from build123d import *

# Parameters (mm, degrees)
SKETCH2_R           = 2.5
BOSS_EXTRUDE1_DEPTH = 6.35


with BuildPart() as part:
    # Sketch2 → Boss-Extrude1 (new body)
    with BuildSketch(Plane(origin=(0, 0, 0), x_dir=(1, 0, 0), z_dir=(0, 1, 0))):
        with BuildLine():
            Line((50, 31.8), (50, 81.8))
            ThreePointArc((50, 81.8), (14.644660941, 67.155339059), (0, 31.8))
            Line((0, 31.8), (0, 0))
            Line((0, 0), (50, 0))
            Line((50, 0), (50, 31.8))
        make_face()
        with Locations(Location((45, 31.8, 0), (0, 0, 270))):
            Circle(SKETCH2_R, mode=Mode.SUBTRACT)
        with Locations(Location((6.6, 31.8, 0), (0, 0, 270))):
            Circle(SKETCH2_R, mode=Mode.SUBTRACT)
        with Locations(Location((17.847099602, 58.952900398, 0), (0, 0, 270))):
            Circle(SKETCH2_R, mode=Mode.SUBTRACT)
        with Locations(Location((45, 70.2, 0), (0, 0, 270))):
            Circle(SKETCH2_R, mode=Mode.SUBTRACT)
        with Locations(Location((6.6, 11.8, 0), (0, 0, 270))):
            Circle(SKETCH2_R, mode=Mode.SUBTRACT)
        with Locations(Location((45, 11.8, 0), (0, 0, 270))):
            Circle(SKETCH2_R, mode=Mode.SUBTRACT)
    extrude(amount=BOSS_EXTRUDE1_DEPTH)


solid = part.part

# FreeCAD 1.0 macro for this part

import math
import FreeCAD as App
import Part
import Sketcher

doc = App.newDocument("Part")
params = doc.addObject("Spreadsheet::Sheet", "Params")
for row, (alias, value) in enumerate([
    ("sketch1_diameter", "5 mm"),
    ("sketch1_radius", "50 mm"),
    ("sketch1_height", "31.8 mm"),
    ("pad1_length", "6.35 mm"),
], start=1):
    params.set(f"A{row}", alias)
    params.set(f"B{row}", "=" + value)
    params.setAlias(f"B{row}", alias)

body = doc.addObject("PartDesign::Body", "Body")

sketch1 = doc.addObject("Sketcher::SketchObject", "Sketch")
body.addObject(sketch1)
sketch1.AttachmentSupport = (doc.XZ_Plane, [""])
sketch1.MapMode = "FlatFace"
sketch1.addGeometry([
    Part.ArcOfCircle(Part.Circle(App.Vector(50, -31.8, 0), App.Vector(0, 0, 1), 50), math.radians(-180), math.radians(-90)),
    Part.LineSegment(App.Vector(0, -31.8, 0), App.Vector(0, 0, 0)),
    Part.LineSegment(App.Vector(0, 0, 0), App.Vector(50, 0, 0)),
    Part.LineSegment(App.Vector(50, 0, 0), App.Vector(50, -81.8, 0)),
    Part.Circle(App.Vector(6.6, -11.8, 0), App.Vector(0, 0, 1), 2.5),
    Part.Circle(App.Vector(6.6, -31.8, 0), App.Vector(0, 0, 1), 2.5),
    Part.Circle(App.Vector(45, -11.8, 0), App.Vector(0, 0, 1), 2.5),
    Part.Circle(App.Vector(45, -31.8, 0), App.Vector(0, 0, 1), 2.5),
    Part.Circle(App.Vector(17.8471, -58.9529, 0), App.Vector(0, 0, 1), 2.5),
    Part.Circle(App.Vector(45, -70.2, 0), App.Vector(0, 0, 1), 2.5),
], False)
sketch1.addConstraint([
    Sketcher.Constraint("Tangent", 0, 1, 1, 1),
    Sketcher.Constraint("Coincident", 1, 2, 2, 1),
    Sketcher.Constraint("Coincident", 2, 2, 3, 1),
    Sketcher.Constraint("Coincident", 3, 2, 0, 2),
    Sketcher.Constraint("Vertical", 1),
    Sketcher.Constraint("Horizontal", 2),
    Sketcher.Constraint("Vertical", 3),
    Sketcher.Constraint("Coincident", 1, 2, -1, 1),
    Sketcher.Constraint("Equal", 4, 5),
    Sketcher.Constraint("Equal", 5, 6),
    Sketcher.Constraint("Equal", 6, 7),
    Sketcher.Constraint("Equal", 7, 8),
    Sketcher.Constraint("Equal", 8, 9),
    Sketcher.Constraint("Horizontal", 0, 3, 5, 3),
    Sketcher.Constraint("Horizontal", 4, 3, 6, 3),
    Sketcher.Constraint("Horizontal", 5, 3, 7, 3),
    Sketcher.Constraint("Vertical", 4, 3, 5, 3),
    Sketcher.Constraint("Vertical", 6, 3, 7, 3),
    Sketcher.Constraint("Vertical", 7, 3, 9, 3),
    Sketcher.Constraint("Vertical", 0, 3, 2, 2),
    Sketcher.Constraint("Diameter", 4, 5.0),
    Sketcher.Constraint("Radius", 0, 50.0),
    Sketcher.Constraint("DistanceY", 1, 1, 1, 2, 31.8),
    Sketcher.Constraint("DistanceX", -1, 1, 6, 3, 45.0),
    Sketcher.Constraint("DistanceY", 0, 3, 4, 3, 20.0),
    Sketcher.Constraint("DistanceX", -1, 1, 4, 3, 6.6),
    Sketcher.Constraint("DistanceY", 9, 3, -1, 1, 70.2),
    Sketcher.Constraint("DistanceX", -1, 1, 8, 3, 17.8471),
    Sketcher.Constraint("DistanceY", 8, 3, -1, 1, 58.9529),
])
sketch1.setExpression("Constraints[20]", "Params.sketch1_diameter")
sketch1.setExpression("Constraints[21]", "Params.sketch1_radius")
sketch1.setExpression("Constraints[22]", "Params.sketch1_height")
pad1 = doc.addObject("PartDesign::Pad", "Pad")
body.addObject(pad1)
pad1.Profile = sketch1
pad1.setExpression("Length", "Params.pad1_length")
pad1.Reversed = True

doc.recompute()
